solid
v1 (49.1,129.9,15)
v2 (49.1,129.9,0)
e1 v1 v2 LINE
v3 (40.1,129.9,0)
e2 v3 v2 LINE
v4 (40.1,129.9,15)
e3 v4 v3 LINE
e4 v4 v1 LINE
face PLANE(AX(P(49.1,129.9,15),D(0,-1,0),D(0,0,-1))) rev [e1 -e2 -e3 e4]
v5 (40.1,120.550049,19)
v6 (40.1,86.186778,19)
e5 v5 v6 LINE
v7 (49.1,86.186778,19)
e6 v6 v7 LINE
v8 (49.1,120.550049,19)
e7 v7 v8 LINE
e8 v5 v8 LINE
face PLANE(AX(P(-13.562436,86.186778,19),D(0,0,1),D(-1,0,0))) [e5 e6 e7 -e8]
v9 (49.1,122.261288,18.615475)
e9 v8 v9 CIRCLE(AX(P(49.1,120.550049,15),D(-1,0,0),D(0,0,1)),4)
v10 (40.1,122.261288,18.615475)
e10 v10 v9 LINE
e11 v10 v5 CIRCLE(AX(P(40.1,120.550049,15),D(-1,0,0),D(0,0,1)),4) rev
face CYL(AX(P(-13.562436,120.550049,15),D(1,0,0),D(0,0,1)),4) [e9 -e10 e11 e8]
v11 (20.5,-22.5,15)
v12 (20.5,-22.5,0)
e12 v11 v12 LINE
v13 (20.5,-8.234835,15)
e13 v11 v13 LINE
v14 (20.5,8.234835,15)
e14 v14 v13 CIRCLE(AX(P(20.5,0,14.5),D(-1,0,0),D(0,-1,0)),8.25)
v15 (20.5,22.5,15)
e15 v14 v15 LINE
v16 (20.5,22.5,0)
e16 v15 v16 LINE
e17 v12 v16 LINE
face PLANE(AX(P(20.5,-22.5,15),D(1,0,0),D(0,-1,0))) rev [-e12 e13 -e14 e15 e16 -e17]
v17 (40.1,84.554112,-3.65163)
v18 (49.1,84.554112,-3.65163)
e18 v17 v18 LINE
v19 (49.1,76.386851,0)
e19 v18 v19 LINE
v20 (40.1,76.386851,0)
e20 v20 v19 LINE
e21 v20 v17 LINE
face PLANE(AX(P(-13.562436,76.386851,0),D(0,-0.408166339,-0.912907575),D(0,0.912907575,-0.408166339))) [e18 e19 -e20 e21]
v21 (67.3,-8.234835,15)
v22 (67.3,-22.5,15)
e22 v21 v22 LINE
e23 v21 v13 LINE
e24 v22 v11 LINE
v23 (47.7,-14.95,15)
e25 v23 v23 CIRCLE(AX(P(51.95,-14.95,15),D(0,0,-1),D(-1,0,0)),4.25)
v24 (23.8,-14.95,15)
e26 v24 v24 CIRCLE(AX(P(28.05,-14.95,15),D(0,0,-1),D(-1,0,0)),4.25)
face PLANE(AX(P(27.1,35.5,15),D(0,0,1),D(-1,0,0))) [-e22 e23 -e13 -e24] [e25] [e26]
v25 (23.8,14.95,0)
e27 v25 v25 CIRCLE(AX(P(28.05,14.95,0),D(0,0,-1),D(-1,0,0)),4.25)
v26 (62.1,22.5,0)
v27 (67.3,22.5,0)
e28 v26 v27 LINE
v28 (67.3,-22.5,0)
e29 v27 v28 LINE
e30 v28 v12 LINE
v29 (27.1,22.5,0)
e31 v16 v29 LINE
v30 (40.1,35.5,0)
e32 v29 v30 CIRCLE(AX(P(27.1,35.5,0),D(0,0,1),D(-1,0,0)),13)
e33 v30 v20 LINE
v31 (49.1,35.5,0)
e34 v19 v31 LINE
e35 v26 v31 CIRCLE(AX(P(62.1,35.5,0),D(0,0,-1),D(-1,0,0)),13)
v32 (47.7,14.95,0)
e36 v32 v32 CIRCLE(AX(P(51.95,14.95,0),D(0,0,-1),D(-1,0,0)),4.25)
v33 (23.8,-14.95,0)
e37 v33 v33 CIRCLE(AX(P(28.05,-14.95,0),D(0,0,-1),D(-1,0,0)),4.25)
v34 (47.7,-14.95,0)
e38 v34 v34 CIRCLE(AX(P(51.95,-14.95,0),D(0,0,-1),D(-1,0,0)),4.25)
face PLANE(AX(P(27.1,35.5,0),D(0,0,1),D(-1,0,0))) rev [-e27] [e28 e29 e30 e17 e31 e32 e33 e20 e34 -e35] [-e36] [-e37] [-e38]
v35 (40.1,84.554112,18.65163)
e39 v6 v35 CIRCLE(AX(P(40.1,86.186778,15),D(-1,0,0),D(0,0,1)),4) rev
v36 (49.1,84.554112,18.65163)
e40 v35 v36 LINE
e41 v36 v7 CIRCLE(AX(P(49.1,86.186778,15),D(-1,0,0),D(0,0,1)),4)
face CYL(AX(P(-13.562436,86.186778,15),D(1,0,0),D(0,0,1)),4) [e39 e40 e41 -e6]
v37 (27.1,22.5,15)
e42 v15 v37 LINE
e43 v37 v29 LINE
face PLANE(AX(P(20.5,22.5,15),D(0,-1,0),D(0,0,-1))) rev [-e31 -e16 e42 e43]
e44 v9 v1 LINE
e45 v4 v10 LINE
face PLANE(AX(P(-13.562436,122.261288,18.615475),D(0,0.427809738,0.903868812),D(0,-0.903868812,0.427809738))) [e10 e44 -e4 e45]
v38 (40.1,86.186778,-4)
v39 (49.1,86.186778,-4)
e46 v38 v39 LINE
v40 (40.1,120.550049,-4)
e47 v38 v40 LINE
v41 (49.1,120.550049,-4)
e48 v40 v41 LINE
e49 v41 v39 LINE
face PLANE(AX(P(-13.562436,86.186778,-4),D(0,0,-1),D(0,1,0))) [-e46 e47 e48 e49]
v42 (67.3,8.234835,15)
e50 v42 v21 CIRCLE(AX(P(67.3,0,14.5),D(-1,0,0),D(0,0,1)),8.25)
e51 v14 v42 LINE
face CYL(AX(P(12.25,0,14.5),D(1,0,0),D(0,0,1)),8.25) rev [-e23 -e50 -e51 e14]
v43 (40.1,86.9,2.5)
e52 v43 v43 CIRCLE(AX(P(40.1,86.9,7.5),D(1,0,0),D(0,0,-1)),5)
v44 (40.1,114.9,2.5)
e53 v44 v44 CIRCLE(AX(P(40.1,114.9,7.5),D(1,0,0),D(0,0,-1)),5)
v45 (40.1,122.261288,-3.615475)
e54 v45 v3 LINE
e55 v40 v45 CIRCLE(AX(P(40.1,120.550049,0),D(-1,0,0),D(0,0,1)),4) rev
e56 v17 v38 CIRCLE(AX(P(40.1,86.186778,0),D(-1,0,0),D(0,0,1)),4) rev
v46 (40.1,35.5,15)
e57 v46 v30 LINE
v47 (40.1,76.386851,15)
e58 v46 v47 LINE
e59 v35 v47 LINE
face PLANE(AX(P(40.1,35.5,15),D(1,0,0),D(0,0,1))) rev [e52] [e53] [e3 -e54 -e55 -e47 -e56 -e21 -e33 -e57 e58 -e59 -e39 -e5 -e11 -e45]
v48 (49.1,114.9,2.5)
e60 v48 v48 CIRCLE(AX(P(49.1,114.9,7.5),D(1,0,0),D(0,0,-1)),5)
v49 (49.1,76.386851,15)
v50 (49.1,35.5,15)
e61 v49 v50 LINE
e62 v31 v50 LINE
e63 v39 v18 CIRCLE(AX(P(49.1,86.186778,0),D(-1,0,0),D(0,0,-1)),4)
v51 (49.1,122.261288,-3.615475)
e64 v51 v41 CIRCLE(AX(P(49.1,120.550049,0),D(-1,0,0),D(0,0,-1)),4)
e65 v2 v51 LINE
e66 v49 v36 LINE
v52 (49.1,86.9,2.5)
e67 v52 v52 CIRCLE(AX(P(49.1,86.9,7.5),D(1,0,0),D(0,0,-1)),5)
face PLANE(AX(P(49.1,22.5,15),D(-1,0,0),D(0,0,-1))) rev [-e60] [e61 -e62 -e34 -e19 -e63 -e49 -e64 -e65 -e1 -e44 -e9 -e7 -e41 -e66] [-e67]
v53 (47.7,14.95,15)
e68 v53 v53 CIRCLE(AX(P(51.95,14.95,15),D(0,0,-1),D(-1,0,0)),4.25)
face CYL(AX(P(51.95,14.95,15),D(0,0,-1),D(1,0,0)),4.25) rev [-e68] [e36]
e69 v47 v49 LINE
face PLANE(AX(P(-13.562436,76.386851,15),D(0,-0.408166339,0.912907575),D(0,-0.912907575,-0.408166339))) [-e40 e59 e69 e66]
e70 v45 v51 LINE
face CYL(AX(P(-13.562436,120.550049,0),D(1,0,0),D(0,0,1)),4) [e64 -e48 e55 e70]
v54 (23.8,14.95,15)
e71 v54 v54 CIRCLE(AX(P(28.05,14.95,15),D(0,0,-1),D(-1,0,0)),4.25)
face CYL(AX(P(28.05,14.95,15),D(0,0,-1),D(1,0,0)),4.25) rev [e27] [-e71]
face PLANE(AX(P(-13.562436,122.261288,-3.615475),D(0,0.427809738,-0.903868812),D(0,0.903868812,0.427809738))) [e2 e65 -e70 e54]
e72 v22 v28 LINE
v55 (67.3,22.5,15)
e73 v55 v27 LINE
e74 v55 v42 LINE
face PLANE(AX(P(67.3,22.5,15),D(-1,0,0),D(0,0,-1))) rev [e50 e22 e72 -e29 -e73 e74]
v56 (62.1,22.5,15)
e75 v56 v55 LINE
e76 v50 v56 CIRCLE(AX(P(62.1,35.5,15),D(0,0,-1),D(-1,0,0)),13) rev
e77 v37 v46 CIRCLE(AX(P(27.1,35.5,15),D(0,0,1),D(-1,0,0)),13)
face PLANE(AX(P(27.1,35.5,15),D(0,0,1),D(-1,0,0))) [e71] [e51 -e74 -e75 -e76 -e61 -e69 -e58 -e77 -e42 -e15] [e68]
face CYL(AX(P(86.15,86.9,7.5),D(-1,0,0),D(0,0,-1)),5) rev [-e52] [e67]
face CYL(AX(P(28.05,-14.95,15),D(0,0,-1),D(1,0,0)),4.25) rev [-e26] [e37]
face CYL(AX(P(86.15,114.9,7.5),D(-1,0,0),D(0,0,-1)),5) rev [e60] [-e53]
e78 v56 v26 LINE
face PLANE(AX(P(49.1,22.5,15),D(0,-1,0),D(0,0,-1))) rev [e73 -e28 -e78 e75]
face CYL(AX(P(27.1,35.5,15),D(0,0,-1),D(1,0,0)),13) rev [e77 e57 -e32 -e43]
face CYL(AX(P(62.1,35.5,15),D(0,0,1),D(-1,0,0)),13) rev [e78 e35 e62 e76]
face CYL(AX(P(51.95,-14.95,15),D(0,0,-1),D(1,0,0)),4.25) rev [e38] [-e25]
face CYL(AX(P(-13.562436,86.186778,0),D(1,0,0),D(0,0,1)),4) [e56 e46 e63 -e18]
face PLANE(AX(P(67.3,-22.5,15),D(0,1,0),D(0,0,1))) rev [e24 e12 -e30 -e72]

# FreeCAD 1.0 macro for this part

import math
import FreeCAD as App
import Part
import Sketcher

V = App.Vector


def edges_at(feature, points):
    """Names of the edges that pass closest to the given points."""
    edges = feature.Shape.Edges
    near = lambda p: min(range(len(edges)), key=lambda i: edges[i].distToShape(Part.Vertex(*p))[0])
    return sorted({f"Edge{near(p) + 1}" for p in points})

doc = App.newDocument("Part")
params = doc.addObject("Spreadsheet::Sheet", "Params")
for row, (alias, value) in enumerate([
    ("sketch1_radius", "13 mm"),
    ("sketch1_diameter", "8.5 mm"),
    ("sketch1_width", "9 mm"),
    ("sketch1_height", "45 mm"),
    ("sketch1_width2", "18.2 mm"),
    ("pad1_length", "15 mm"),
    ("sketch2_diameter", "16.5 mm"),
    ("pocket1_length", "55.05 mm"),
    ("sketch3_diameter", "10 mm"),
    ("pocket2_length", "46.05 mm"),
    ("sketch4_radius", "4 mm"),
    ("pad2_length", "9 mm"),
    ("fillet_radius", "13 mm"),
], start=1):
    params.set(f"A{row}", alias)
    params.set(f"B{row}", "=" + value)
    params.setAlias(f"B{row}", alias)

body = doc.addObject("PartDesign::Body", "Body")

sketch1 = body.newObject("Sketcher::SketchObject", "Sketch")
sketch1.AttachmentSupport = (doc.getObject("XY_Plane"), [""])
sketch1.MapMode = "FlatFace"
sketch1.addGeometry(Part.LineSegment(V(-8.1, 129.9, 0), V(-8.1, 22.5, 0)), False)
sketch1.addGeometry(Part.LineSegment(V(-8.1, 22.5, 0), V(-26.3, 22.5, 0)), False)
sketch1.addGeometry(Part.LineSegment(V(-26.3, 22.5, 0), V(-26.3, -22.5, 0)), False)
sketch1.addGeometry(Part.LineSegment(V(-26.3, -22.5, 0), V(20.5, -22.5, 0)), False)
sketch1.addGeometry(Part.LineSegment(V(20.5, -22.5, 0), V(20.5, 22.5, 0)), False)
sketch1.addGeometry(Part.LineSegment(V(20.5, 22.5, 0), V(13.9, 22.5, 0)), False)
sketch1.addGeometry(Part.ArcOfCircle(Part.Circle(V(13.9, 35.5, 0), V(0, 0, 1), 13), math.radians(-180), math.radians(-90)), False)
sketch1.addGeometry(Part.LineSegment(V(0.9, 35.5, 0), V(0.9, 129.9, 0)), False)
sketch1.addGeometry(Part.LineSegment(V(0.9, 129.9, 0), V(-8.1, 129.9, 0)), False)
sketch1.addGeometry(Part.Circle(V(12.9, -14.9, 0), V(0, 0, 1), 4.2), False)
sketch1.addGeometry(Part.Circle(V(-10.9, -14.9, 0), V(0, 0, 1), 4.2), False)
sketch1.addGeometry(Part.Circle(V(12.9, 14.9, 0), V(0, 0, 1), 4.2), False)
sketch1.addGeometry(Part.Circle(V(-10.9, 14.9, 0), V(0, 0, 1), 4.2), False)
sketch1.addConstraint(Sketcher.Constraint("Coincident", 0, 2, 1, 1))
sketch1.addConstraint(Sketcher.Constraint("Coincident", 1, 2, 2, 1))
sketch1.addConstraint(Sketcher.Constraint("Coincident", 2, 2, 3, 1))
sketch1.addConstraint(Sketcher.Constraint("Coincident", 3, 2, 4, 1))
sketch1.addConstraint(Sketcher.Constraint("Coincident", 4, 2, 5, 1))
sketch1.addConstraint(Sketcher.Constraint("Tangent", 5, 2, 6, 2))
sketch1.addConstraint(Sketcher.Constraint("Tangent", 6, 1, 7, 1))
sketch1.addConstraint(Sketcher.Constraint("Coincident", 7, 2, 8, 1))
sketch1.addConstraint(Sketcher.Constraint("Coincident", 8, 2, 0, 1))
sketch1.addConstraint(Sketcher.Constraint("Vertical", 0))
sketch1.addConstraint(Sketcher.Constraint("Horizontal", 1))
sketch1.addConstraint(Sketcher.Constraint("Vertical", 2))
sketch1.addConstraint(Sketcher.Constraint("Horizontal", 3))
sketch1.addConstraint(Sketcher.Constraint("Vertical", 4))
sketch1.addConstraint(Sketcher.Constraint("Horizontal", 5))
sketch1.addConstraint(Sketcher.Constraint("Vertical", 7))
sketch1.addConstraint(Sketcher.Constraint("Horizontal", 8))
sketch1.addConstraint(Sketcher.Constraint("Equal", 9, 10))
sketch1.addConstraint(Sketcher.Constraint("Equal", 10, 11))
sketch1.addConstraint(Sketcher.Constraint("Equal", 11, 12))
sketch1.addConstraint(Sketcher.Constraint("Symmetric", 9, 3, 11, 3, -1))
sketch1.addConstraint(Sketcher.Constraint("Symmetric", 10, 3, 12, 3, -1))
sketch1.addConstraint(Sketcher.Constraint("Horizontal", 9, 3, 10, 3))
sketch1.addConstraint(Sketcher.Constraint("Horizontal", 1, 2, 4, 2))
sketch1.addConstraint(Sketcher.Constraint("Radius", 6, 13.0))
sketch1.addConstraint(Sketcher.Constraint("Diameter", 9, 8.5))
sketch1.addConstraint(Sketcher.Constraint("DistanceX", 8, 2, 8, 1, 9.0))
sketch1.addConstraint(Sketcher.Constraint("DistanceY", 2, 2, 2, 1, 45.0))
sketch1.addConstraint(Sketcher.Constraint("DistanceX", 1, 2, 1, 1, 18.2))
sketch1.addConstraint(Sketcher.Constraint("DistanceX", 3, 1, 3, 2, 46.8))
sketch1.addConstraint(Sketcher.Constraint("DistanceY", 0, 2, 0, 1, 107.4))
sketch1.addConstraint(Sketcher.Constraint("DistanceX", -1, 1, 6, 3, 13.9))
sketch1.addConstraint(Sketcher.Constraint("DistanceY", -1, 1, 6, 3, 35.5))
sketch1.addConstraint(Sketcher.Constraint("DistanceX", 10, 3, 9, 3, 23.9))
sketch1.addConstraint(Sketcher.Constraint("DistanceY", 9, 3, 11, 3, 29.9))
sketch1.addConstraint(Sketcher.Constraint("DistanceX", -1, 1, 9, 3, 12.95))
sketch1.setExpression("Constraints[24]", "Params.sketch1_radius")
sketch1.setExpression("Constraints[25]", "Params.sketch1_diameter")
sketch1.setExpression("Constraints[26]", "Params.sketch1_width")
sketch1.setExpression("Constraints[27]", "Params.sketch1_height")
sketch1.setExpression("Constraints[28]", "Params.sketch1_width2")
pad1 = body.newObject("PartDesign::Pad", "Pad")
pad1.Profile = sketch1
pad1.setExpression("Length", "Params.pad1_length")

sketch2 = body.newObject("Sketcher::SketchObject", "Sketch001")
sketch2.AttachmentSupport = (doc.getObject("YZ_Plane"), [""])
sketch2.MapMode = "FlatFace"
sketch2.AttachmentOffset = App.Placement(V(0, 0, -26.3), App.Rotation())
sketch2.addGeometry(Part.Circle(V(0, 14, 0), V(0, 0, 1), 8), False)
sketch2.addConstraint(Sketcher.Constraint("PointOnObject", 0, 3, -2))
sketch2.addConstraint(Sketcher.Constraint("Diameter", 0, 16.5))
sketch2.addConstraint(Sketcher.Constraint("DistanceY", -1, 1, 0, 3, 14.5))
sketch2.setExpression("Constraints[1]", "Params.sketch2_diameter")
pocket1 = body.newObject("PartDesign::Pocket", "Pocket")
pocket1.Profile = sketch2
pocket1.setExpression("Length", "Params.pocket1_length")
pocket1.Reversed = True

sketch3 = body.newObject("Sketcher::SketchObject", "Sketch002")
sketch3.AttachmentSupport = (doc.getObject("YZ_Plane"), [""])
sketch3.MapMode = "FlatFace"
sketch3.AttachmentOffset = App.Placement(V(0, 0, 0.9), App.Rotation())
sketch3.addGeometry(Part.Circle(V(87, 8, 0), V(0, 0, 1), 5), False)
sketch3.addGeometry(Part.Circle(V(115, 8, 0), V(0, 0, 1), 5), False)
sketch3.addConstraint(Sketcher.Constraint("Equal", 0, 1))
sketch3.addConstraint(Sketcher.Constraint("Horizontal", 0, 3, 1, 3))
sketch3.addConstraint(Sketcher.Constraint("Diameter", 0, 10.0))
sketch3.addConstraint(Sketcher.Constraint("DistanceX", 0, 3, 1, 3, 28.0))
sketch3.addConstraint(Sketcher.Constraint("DistanceX", -1, 1, 0, 3, 86.9))
sketch3.addConstraint(Sketcher.Constraint("DistanceY", -1, 1, 0, 3, 7.5))
sketch3.setExpression("Constraints[2]", "Params.sketch3_diameter")
pocket2 = body.newObject("PartDesign::Pocket", "Pocket001")
pocket2.Profile = sketch3
pocket2.setExpression("Length", "Params.pocket2_length")

sketch4 = body.newObject("Sketcher::SketchObject", "Sketch003")
sketch4.AttachmentSupport = (doc.getObject("YZ_Plane"), [""])
sketch4.MapMode = "FlatFace"
sketch4.AttachmentOffset = App.Placement(V(0, 0, -8.1), App.Rotation())
sketch4.addGeometry(Part.LineSegment(V(76.4, 15, 0), V(84.6, 18.7, 0)), False)
sketch4.addGeometry(Part.ArcOfCircle(Part.Circle(V(86.2, 15, 0), V(0, 0, 1), 4), math.radians(90), math.radians(114)), False)
sketch4.addGeometry(Part.LineSegment(V(86.2, 19, 0), V(120.6, 19, 0)), False)
sketch4.addGeometry(Part.ArcOfCircle(Part.Circle(V(120.6, 15, 0), V(0, 0, 1), 4), math.radians(65), math.radians(90)), False)
sketch4.addGeometry(Part.LineSegment(V(122.3, 18.6, 0), V(129.9, 15, 0)), False)
sketch4.addGeometry(Part.LineSegment(V(129.9, 15, 0), V(76.4, 15, 0)), False)
sketch4.addGeometry(Part.LineSegment(V(129.9, 0, 0), V(122.3, -3.6, 0)), False)
sketch4.addGeometry(Part.ArcOfCircle(Part.Circle(V(120.6, 0, 0), V(0, 0, 1), 4), math.radians(-90), math.radians(-65)), False)
sketch4.addGeometry(Part.LineSegment(V(120.6, -4, 0), V(86.2, -4, 0)), False)
sketch4.addGeometry(Part.ArcOfCircle(Part.Circle(V(86.2, 0, 0), V(0, 0, 1), 4), math.radians(-114), math.radians(-90)), False)
sketch4.addGeometry(Part.LineSegment(V(84.6, -3.7, 0), V(76.4, 0, 0)), False)
sketch4.addGeometry(Part.LineSegment(V(76.4, 0, 0), V(129.9, 0, 0)), False)
sketch4.addConstraint(Sketcher.Constraint("Tangent", 0, 2, 1, 2))
sketch4.addConstraint(Sketcher.Constraint("Tangent", 1, 1, 2, 1))
sketch4.addConstraint(Sketcher.Constraint("Tangent", 2, 2, 3, 2))
sketch4.addConstraint(Sketcher.Constraint("Tangent", 3, 1, 4, 1))
sketch4.addConstraint(Sketcher.Constraint("Coincident", 4, 2, 5, 1))
sketch4.addConstraint(Sketcher.Constraint("Coincident", 5, 2, 0, 1))
sketch4.addConstraint(Sketcher.Constraint("Tangent", 6, 2, 7, 2))
sketch4.addConstraint(Sketcher.Constraint("Tangent", 7, 1, 8, 1))
sketch4.addConstraint(Sketcher.Constraint("Tangent", 8, 2, 9, 2))
sketch4.addConstraint(Sketcher.Constraint("Tangent", 9, 1, 10, 1))
sketch4.addConstraint(Sketcher.Constraint("Coincident", 10, 2, 11, 1))
sketch4.addConstraint(Sketcher.Constraint("Coincident", 11, 2, 6, 1))
sketch4.addConstraint(Sketcher.Constraint("Horizontal", 2))
sketch4.addConstraint(Sketcher.Constraint("Horizontal", 5))
sketch4.addConstraint(Sketcher.Constraint("Horizontal", 8))
sketch4.addConstraint(Sketcher.Constraint("Horizontal", 11))
sketch4.addConstraint(Sketcher.Constraint("Equal", 1, 3))
sketch4.addConstraint(Sketcher.Constraint("Equal", 3, 7))
sketch4.addConstraint(Sketcher.Constraint("Equal", 7, 9))
sketch4.addConstraint(Sketcher.Constraint("PointOnObject", 7, 3, -1))
sketch4.addConstraint(Sketcher.Constraint("PointOnObject", 10, 2, -1))
sketch4.addConstraint(Sketcher.Constraint("Horizontal", 3, 3, 4, 2))
sketch4.addConstraint(Sketcher.Constraint("Vertical", 3, 3, 7, 3))
sketch4.addConstraint(Sketcher.Constraint("Vertical", 1, 3, 9, 3))
sketch4.addConstraint(Sketcher.Constraint("Vertical", 3, 1, 6, 2))
sketch4.addConstraint(Sketcher.Constraint("Vertical", 0, 2, 9, 1))
sketch4.addConstraint(Sketcher.Constraint("Radius", 1, 4.0))
sketch4.addConstraint(Sketcher.Constraint("DistanceY", -1, 1, 1, 3, 15.0))
sketch4.addConstraint(Sketcher.Constraint("DistanceX", -1, 1, 4, 2, 129.9))
sketch4.addConstraint(Sketcher.Constraint("DistanceX", 2, 1, 2, 2, 34.363272))
sketch4.addConstraint(Sketcher.Constraint("DistanceX", 5, 2, 5, 1, 53.513149))
sketch4.addConstraint(Sketcher.Constraint("Distance", 4, 8.451129))
sketch4.setExpression("Constraints[26]", "Params.sketch4_radius")
pad2 = body.newObject("PartDesign::Pad", "Pad001")
pad2.Profile = sketch4
pad2.setExpression("Length", "Params.pad2_length")
doc.recompute()

fillet = body.newObject("PartDesign::Fillet", "Fillet")
fillet.Base = (pad2, edges_at(pad2, [(-8.1, 22.5, 7.5)]))
fillet.setExpression("Radius", "Params.fillet_radius")
body2 = doc.addObject("PartDesign::Body", "Body001")
doc.recompute()

mirroring = doc.addObject("Part::Mirroring", "Mirroring")
mirroring.Source = body
mirroring.Base = V(20.5, -22.5, 15)
mirroring.Normal = V(-1, 0, 0)
body2.BaseFeature = mirroring
doc.recompute()
body.Visibility = False
mirroring.Visibility = False

doc.recompute()
